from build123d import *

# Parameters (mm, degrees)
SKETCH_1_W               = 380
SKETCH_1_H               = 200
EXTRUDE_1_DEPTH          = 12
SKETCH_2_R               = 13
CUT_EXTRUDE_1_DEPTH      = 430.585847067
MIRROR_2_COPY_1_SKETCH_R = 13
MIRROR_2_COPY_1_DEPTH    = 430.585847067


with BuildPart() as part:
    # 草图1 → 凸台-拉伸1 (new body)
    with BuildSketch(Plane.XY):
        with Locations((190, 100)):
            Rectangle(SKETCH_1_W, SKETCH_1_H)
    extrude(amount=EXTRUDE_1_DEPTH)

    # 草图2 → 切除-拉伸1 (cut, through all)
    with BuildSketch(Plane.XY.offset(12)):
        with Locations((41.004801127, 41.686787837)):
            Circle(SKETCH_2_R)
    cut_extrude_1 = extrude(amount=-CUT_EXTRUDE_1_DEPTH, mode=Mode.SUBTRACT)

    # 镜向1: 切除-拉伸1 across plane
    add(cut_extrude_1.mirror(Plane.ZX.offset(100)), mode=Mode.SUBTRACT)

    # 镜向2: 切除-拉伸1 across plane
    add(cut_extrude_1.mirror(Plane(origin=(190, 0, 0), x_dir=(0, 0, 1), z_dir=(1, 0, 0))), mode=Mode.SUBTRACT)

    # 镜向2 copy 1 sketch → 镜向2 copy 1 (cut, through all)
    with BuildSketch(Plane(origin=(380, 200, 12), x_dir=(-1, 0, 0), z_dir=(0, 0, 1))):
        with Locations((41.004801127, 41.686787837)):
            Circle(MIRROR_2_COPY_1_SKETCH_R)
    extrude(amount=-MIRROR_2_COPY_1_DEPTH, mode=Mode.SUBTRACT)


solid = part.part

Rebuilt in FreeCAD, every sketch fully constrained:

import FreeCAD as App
import Part
import Sketcher
from FreeCAD import Vector


def add_polygon(sketch, points):
    """Adds a closed chain of lines whose ends are joined by coincident constraints."""
    first, n = sketch.GeometryCount, len(points)
    for a, b in zip(points, points[1:] + points[:1]):
        sketch.addGeometry(Part.LineSegment(App.Vector(*a, 0), App.Vector(*b, 0)), False)
    for i in range(n):
        sketch.addConstraint(Sketcher.Constraint("Coincident", first + i, 2, first + (i + 1) % n, 1))

doc = App.newDocument("Part")
body = doc.addObject("PartDesign::Body", "Body")

# Sketch on XY plane
sketch1 = doc.addObject("Sketcher::SketchObject", "Sketch")
body.addObject(sketch1)
sketch1.AttachmentSupport = (doc.XY_Plane, [""])
sketch1.MapMode = "FlatFace"
add_polygon(sketch1, [(0, 200), (0, 0), (380, 0), (380, 200)])  # lines 0-3
sketch1.addConstraint(Sketcher.Constraint("Vertical", 0))
sketch1.addConstraint(Sketcher.Constraint("Horizontal", 1))
sketch1.addConstraint(Sketcher.Constraint("Vertical", 2))
sketch1.addConstraint(Sketcher.Constraint("Horizontal", 3))
sketch1.addConstraint(Sketcher.Constraint("Coincident", 0, 2, -1, 1))
sketch1.addConstraint(Sketcher.Constraint("DistanceX", 1, 1, 1, 2, 380.0))
sketch1.addConstraint(Sketcher.Constraint("DistanceY", 0, 2, 0, 1, 200.0))
pad1 = doc.addObject("PartDesign::Pad", "Pad")
body.addObject(pad1)
pad1.Profile = sketch1
pad1.Length = 12

# Sketch on XY plane
sketch2 = doc.addObject("Sketcher::SketchObject", "Sketch001")
body.addObject(sketch2)
sketch2.AttachmentSupport = (doc.XY_Plane, [""])
sketch2.MapMode = "FlatFace"
sketch2.AttachmentOffset = App.Placement(Vector(0, 0, 12), App.Rotation())
sketch2.addGeometry(Part.Circle(Vector(41.004801, 41.686788, 0), Vector(0, 0, 1), 13), False)
sketch2.addConstraint(Sketcher.Constraint("Diameter", 0, 26.0))
sketch2.addConstraint(Sketcher.Constraint("DistanceX", -1, 1, 0, 3, 41.004801))
sketch2.addConstraint(Sketcher.Constraint("DistanceY", -1, 1, 0, 3, 41.686788))
pocket1 = doc.addObject("PartDesign::Pocket", "Pocket")
body.addObject(pocket1)
pocket1.Profile = sketch2
pocket1.Type = "ThroughAll"
doc.recompute()

datumplane = doc.addObject("PartDesign::Plane", "DatumPlane")
body.addObject(datumplane)
datumplane.AttachmentSupport = (doc.XZ_Plane, [""])
datumplane.MapMode = "FlatFace"
datumplane.AttachmentOffset = App.Placement(Vector(0, 0, -100), App.Rotation())
mirrored = doc.addObject("PartDesign::Mirrored", "Mirrored")
body.addObject(mirrored)
mirrored.Originals = [pocket1]
mirrored.MirrorPlane = (datumplane, [""])
body.Tip = mirrored
doc.recompute()

datumplane2 = doc.addObject("PartDesign::Plane", "DatumPlane001")
body.addObject(datumplane2)
datumplane2.AttachmentSupport = (doc.YZ_Plane, [""])
datumplane2.MapMode = "FlatFace"
datumplane2.AttachmentOffset = App.Placement(Vector(0, 0, 190), App.Rotation())
mirrored2 = doc.addObject("PartDesign::Mirrored", "Mirrored001")
body.addObject(mirrored2)
mirrored2.Originals = [pocket1]
mirrored2.MirrorPlane = (datumplane2, [""])
body.Tip = mirrored2

# Sketch on XY plane
sketch3 = doc.addObject("Sketcher::SketchObject", "Sketch002")
body.addObject(sketch3)
sketch3.AttachmentSupport = (doc.XY_Plane, [""])
sketch3.MapMode = "FlatFace"
sketch3.AttachmentOffset = App.Placement(Vector(0, 0, 12), App.Rotation())
sketch3.addGeometry(Part.Circle(Vector(338.995199, 158.313212, 0), Vector(0, 0, 1), 13), False)
sketch3.addConstraint(Sketcher.Constraint("Diameter", 0, 26.0))
sketch3.addConstraint(Sketcher.Constraint("DistanceX", -1, 1, 0, 3, 338.995199))
sketch3.addConstraint(Sketcher.Constraint("DistanceY", -1, 1, 0, 3, 158.313212))
pocket2 = doc.addObject("PartDesign::Pocket", "Pocket001")
body.addObject(pocket2)
pocket2.Profile = sketch3
pocket2.Type = "ThroughAll"

doc.recompute()
